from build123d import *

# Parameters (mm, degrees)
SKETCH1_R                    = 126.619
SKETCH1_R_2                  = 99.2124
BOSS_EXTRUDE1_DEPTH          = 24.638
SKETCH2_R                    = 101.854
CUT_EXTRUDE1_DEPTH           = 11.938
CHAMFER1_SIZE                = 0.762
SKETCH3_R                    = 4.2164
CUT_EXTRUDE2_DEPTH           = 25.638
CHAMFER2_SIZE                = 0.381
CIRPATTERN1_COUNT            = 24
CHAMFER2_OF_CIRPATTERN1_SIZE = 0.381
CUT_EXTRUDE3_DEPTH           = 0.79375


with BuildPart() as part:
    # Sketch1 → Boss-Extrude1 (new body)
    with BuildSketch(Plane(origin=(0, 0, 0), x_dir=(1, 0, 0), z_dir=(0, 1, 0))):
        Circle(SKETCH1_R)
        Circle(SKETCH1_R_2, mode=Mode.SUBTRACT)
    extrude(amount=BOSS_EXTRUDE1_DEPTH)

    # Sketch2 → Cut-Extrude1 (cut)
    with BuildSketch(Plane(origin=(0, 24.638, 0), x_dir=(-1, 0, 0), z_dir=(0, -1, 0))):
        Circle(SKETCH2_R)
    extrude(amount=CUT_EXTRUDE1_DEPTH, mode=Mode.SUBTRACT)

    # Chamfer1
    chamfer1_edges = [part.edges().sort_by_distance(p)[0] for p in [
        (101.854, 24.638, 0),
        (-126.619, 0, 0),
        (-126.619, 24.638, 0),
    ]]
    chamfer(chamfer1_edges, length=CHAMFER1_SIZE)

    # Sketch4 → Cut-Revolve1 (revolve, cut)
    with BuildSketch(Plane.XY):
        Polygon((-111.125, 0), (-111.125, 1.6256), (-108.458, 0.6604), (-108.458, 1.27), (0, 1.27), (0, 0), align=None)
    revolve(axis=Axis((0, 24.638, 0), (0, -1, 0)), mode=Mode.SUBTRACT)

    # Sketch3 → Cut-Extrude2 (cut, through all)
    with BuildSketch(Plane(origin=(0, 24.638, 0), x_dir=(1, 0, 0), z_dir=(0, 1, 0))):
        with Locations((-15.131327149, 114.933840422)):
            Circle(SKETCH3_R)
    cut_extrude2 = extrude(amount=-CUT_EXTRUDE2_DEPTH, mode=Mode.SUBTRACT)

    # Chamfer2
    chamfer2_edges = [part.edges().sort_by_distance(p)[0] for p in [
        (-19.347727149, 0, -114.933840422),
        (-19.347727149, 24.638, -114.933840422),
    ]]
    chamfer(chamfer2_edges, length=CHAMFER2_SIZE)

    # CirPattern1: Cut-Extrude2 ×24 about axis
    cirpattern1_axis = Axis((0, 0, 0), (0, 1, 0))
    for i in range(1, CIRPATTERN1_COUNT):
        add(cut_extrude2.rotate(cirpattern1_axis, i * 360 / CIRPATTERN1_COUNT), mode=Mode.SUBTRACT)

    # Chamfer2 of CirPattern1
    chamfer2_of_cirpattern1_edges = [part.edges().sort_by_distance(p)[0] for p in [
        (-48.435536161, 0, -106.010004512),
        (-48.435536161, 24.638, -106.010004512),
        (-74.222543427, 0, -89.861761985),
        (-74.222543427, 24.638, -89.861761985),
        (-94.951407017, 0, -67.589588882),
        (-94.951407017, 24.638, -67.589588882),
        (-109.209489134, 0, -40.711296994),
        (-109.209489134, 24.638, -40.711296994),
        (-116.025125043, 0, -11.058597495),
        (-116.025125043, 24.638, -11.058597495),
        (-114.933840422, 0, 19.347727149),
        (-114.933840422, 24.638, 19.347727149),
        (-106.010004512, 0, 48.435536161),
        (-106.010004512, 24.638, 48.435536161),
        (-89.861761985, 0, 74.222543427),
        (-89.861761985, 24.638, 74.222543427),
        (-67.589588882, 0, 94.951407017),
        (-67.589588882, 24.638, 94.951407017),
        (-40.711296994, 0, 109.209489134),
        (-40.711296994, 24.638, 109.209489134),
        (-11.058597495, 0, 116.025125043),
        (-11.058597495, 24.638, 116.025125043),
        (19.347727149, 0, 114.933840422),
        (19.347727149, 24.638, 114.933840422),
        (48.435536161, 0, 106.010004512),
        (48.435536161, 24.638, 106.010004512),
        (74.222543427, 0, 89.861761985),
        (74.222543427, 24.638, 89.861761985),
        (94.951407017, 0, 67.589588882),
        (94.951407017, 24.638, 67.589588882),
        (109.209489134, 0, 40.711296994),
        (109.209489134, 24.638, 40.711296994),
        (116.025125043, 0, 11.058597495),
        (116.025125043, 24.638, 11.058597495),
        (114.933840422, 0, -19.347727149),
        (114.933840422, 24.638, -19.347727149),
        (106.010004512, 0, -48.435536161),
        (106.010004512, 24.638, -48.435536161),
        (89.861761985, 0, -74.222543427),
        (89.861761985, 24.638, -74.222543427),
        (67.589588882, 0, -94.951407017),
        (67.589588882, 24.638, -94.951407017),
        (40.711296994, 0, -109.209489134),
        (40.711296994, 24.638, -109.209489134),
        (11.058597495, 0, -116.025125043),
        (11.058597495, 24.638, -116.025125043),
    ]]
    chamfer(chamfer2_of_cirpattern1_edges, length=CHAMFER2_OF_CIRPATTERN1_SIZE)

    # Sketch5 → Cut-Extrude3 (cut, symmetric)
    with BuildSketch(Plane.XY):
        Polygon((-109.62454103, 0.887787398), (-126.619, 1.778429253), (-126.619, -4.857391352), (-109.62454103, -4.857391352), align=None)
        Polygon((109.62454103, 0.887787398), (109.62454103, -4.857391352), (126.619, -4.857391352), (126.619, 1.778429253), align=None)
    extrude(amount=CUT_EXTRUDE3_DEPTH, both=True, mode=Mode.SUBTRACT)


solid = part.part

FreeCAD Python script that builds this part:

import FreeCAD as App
import Part
import Sketcher
from FreeCAD import Vector
Q = App.Units.Quantity


def edges_at(feature, points):
    """Names of the edges that pass closest to the given points."""
    edges = feature.Shape.Edges
    near = lambda p: min(range(len(edges)), key=lambda i: edges[i].distToShape(Part.Vertex(*p))[0])
    return sorted({f"Edge{near(p) + 1}" for p in points})

doc = App.newDocument("Part")
body = doc.addObject("PartDesign::Body", "Body")

# Sketch on XZ plane
sketch1 = body.newObject("Sketcher::SketchObject", "Sketch")
sketch1.AttachmentSupport = (doc.getObject("XZ_Plane"), [""])
sketch1.MapMode = "FlatFace"
sketch1.addGeometry(Part.Circle(Vector(0, 0, 0), Vector(0, 0, 1), 127), False)
sketch1.addGeometry(Part.Circle(Vector(0, 0, 0), Vector(0, 0, 1), 99), False)
sketch1.addConstraint(Sketcher.Constraint("Coincident", 0, 3, -1, 1))
sketch1.addConstraint(Sketcher.Constraint("Coincident", 1, 3, -1, 1))
sketch1.addConstraint(Sketcher.Constraint("Diameter", 0, Q("9.97 in")))
sketch1.addConstraint(Sketcher.Constraint("Diameter", 1, Q("7.812 in")))
pad1 = body.newObject("PartDesign::Pad", "Pad")
pad1.Profile = sketch1
pad1.Length = Q("0.97 in")
pad1.Reversed = True

# Sketch on XZ plane
sketch2 = body.newObject("Sketcher::SketchObject", "Sketch001")
sketch2.AttachmentSupport = (doc.getObject("XZ_Plane"), [""])
sketch2.MapMode = "FlatFace"
sketch2.AttachmentOffset = App.Placement(Vector(0, 0, -0.97 * 25.4), App.Rotation())
sketch2.addGeometry(Part.Circle(Vector(0, 0, 0), Vector(0, 0, 1), 102), False)
sketch2.addConstraint(Sketcher.Constraint("Coincident", 0, 3, -1, 1))
sketch2.addConstraint(Sketcher.Constraint("Diameter", 0, Q("8.02 in")))
pocket1 = body.newObject("PartDesign::Pocket", "Pocket")
pocket1.Profile = sketch2
pocket1.Length = Q("0.47 in")
pocket1.Reversed = True
doc.recompute()

chamfer = body.newObject("PartDesign::Chamfer", "Chamfer")
chamfer.Base = (pocket1, edges_at(pocket1, [(101.854, 24.638, 0), (-126.619, 0, 0), (-126.619, 24.638, 0)]))
chamfer.Size = Q("0.03 in")

# Sketch on XY plane
sketch3 = body.newObject("Sketcher::SketchObject", "Sketch002")
sketch3.AttachmentSupport = (doc.getObject("XY_Plane"), [""])
sketch3.MapMode = "FlatFace"
sketch3.addGeometry(Part.LineSegment(Vector(-111.1, 1.6, 0), Vector(-111.1, 0, 0)), False)
sketch3.addGeometry(Part.LineSegment(Vector(-111.1, 0, 0), Vector(0, 0, 0)), False)
sketch3.addGeometry(Part.LineSegment(Vector(0, 0, 0), Vector(0, 1.3, 0)), False)
sketch3.addGeometry(Part.LineSegment(Vector(0, 1.3, 0), Vector(-108.5, 1.3, 0)), False)
sketch3.addGeometry(Part.LineSegment(Vector(-108.5, 1.3, 0), Vector(-108.5, 0.7, 0)), False)
sketch3.addGeometry(Part.LineSegment(Vector(-108.5, 0.7, 0), Vector(-111.1, 1.6, 0)), False)
sketch3.addConstraint(Sketcher.Constraint("Coincident", 0, 2, 1, 1))
sketch3.addConstraint(Sketcher.Constraint("Coincident", 1, 2, 2, 1))
sketch3.addConstraint(Sketcher.Constraint("Coincident", 2, 2, 3, 1))
sketch3.addConstraint(Sketcher.Constraint("Coincident", 3, 2, 4, 1))
sketch3.addConstraint(Sketcher.Constraint("Coincident", 4, 2, 5, 1))
sketch3.addConstraint(Sketcher.Constraint("Coincident", 5, 2, 0, 1))
sketch3.addConstraint(Sketcher.Constraint("Vertical", 0))
sketch3.addConstraint(Sketcher.Constraint("Horizontal", 1))
sketch3.addConstraint(Sketcher.Constraint("Vertical", 2))
sketch3.addConstraint(Sketcher.Constraint("Horizontal", 3))
sketch3.addConstraint(Sketcher.Constraint("Vertical", 4))
sketch3.addConstraint(Sketcher.Constraint("Coincident", 1, 2, -1, 1))
sketch3.addConstraint(Sketcher.Constraint("DistanceX", 3, 2, 3, 1, Q("4.27 in")))
sketch3.addConstraint(Sketcher.Constraint("DistanceY", 2, 1, 2, 2, Q("0.05 in")))
sketch3.addConstraint(Sketcher.Constraint("DistanceX", 1, 1, 1, 2, Q("4.375 in")))
sketch3.addConstraint(Sketcher.Constraint("DistanceY", 0, 2, 0, 1, Q("0.064 in")))
sketch3.addConstraint(Sketcher.Constraint("DistanceY", 4, 2, 4, 1, Q("0.024 in")))
groove = body.newObject("PartDesign::Groove", "Groove")
groove.Profile = sketch3
groove.ReferenceAxis = (sketch3, ["V_Axis"])
groove.Angle = 360

# Sketch on XZ plane
sketch4 = body.newObject("Sketcher::SketchObject", "Sketch003")
sketch4.AttachmentSupport = (doc.getObject("XZ_Plane"), [""])
sketch4.MapMode = "FlatFace"
sketch4.AttachmentOffset = App.Placement(Vector(0, 0, -0.97 * 25.4), App.Rotation())
sketch4.addGeometry(Part.Circle(Vector(-15.1, -114.9, 0), Vector(0, 0, 1), 4.2), False)
sketch4.addConstraint(Sketcher.Constraint("Diameter", 0, Q("0.332 in")))
sketch4.addConstraint(Sketcher.Constraint("DistanceY", 0, 3, -1, 1, 114.93384))
sketch4.addConstraint(Sketcher.Constraint("DistanceX", 0, 3, -1, 1, 15.131327))
pocket2 = body.newObject("PartDesign::Pocket", "Pocket001")
pocket2.Profile = sketch4
pocket2.Type = "ThroughAll"
pocket2.Reversed = True
doc.recompute()

chamfer2 = body.newObject("PartDesign::Chamfer", "Chamfer001")
chamfer2.Base = (pocket2, edges_at(pocket2, [(-19.348, 0, -114.934), (-19.348, 24.638, -114.934)]))
chamfer2.Size = Q("0.015 in")
doc.recompute()

polarpattern = body.newObject("PartDesign::PolarPattern", "PolarPattern")
polarpattern.Originals = [pocket2]
polarpattern.Axis = (doc.getObject("Y_Axis"), [""])
polarpattern.Angle = 360
polarpattern.Occurrences = 24
body.Tip = polarpattern
doc.recompute()

chamfer3 = body.newObject("PartDesign::Chamfer", "Chamfer002")
chamfer3.Base = (polarpattern, edges_at(polarpattern, [
    (-48.436, 0, -106.01),
    (-48.436, 24.638, -106.01),
    (-74.223, 0, -89.862),
    (-74.223, 24.638, -89.862),
    (-94.951, 0, -67.59),
    (-94.951, 24.638, -67.59),
    (-109.209, 0, -40.711),
    (-109.209, 24.638, -40.711),
    (-116.025, 0, -11.059),
    (-116.025, 24.638, -11.059),
    (-114.934, 0, 19.348),
    (-114.934, 24.638, 19.348),
    (-106.01, 0, 48.436),
    (-106.01, 24.638, 48.436),
    (-89.862, 0, 74.223),
    (-89.862, 24.638, 74.223),
    (-67.59, 0, 94.951),
    (-67.59, 24.638, 94.951),
    (-40.711, 0, 109.209),
    (-40.711, 24.638, 109.209),
    (-11.059, 0, 116.025),
    (-11.059, 24.638, 116.025),
    (19.348, 0, 114.934),
    (19.348, 24.638, 114.934),
    (48.436, 0, 106.01),
    (48.436, 24.638, 106.01),
    (74.223, 0, 89.862),
    (74.223, 24.638, 89.862),
    (94.951, 0, 67.59),
    (94.951, 24.638, 67.59),
    (109.209, 0, 40.711),
    (109.209, 24.638, 40.711),
    (116.025, 0, 11.059),
    (116.025, 24.638, 11.059),
    (114.934, 0, -19.348),
    (114.934, 24.638, -19.348),
    (106.01, 0, -48.436),
    (106.01, 24.638, -48.436),
    (89.862, 0, -74.223),
    (89.862, 24.638, -74.223),
    (67.59, 0, -94.951),
    (67.59, 24.638, -94.951),
    (40.711, 0, -109.209),
    (40.711, 24.638, -109.209),
    (11.059, 0, -116.025),
    (11.059, 24.638, -116.025),
]))
chamfer3.Size = Q("0.015 in")

# Sketch on XY plane
sketch5 = body.newObject("Sketcher::SketchObject", "Sketch004")
sketch5.AttachmentSupport = (doc.getObject("XY_Plane"), [""])
sketch5.MapMode = "FlatFace"
sketch5.addGeometry(Part.LineSegment(Vector(-110, 1, 0), Vector(-127, 2, 0)), False)
sketch5.addGeometry(Part.LineSegment(Vector(-127, 2, 0), Vector(-127, -5, 0)), False)
sketch5.addGeometry(Part.LineSegment(Vector(-127, -5, 0), Vector(-110, -5, 0)), False)
sketch5.addGeometry(Part.LineSegment(Vector(-110, -5, 0), Vector(-110, 1, 0)), False)
sketch5.addGeometry(Part.LineSegment(Vector(110, 1, 0), Vector(110, -5, 0)), False)
sketch5.addGeometry(Part.LineSegment(Vector(110, -5, 0), Vector(127, -5, 0)), False)
sketch5.addGeometry(Part.LineSegment(Vector(127, -5, 0), Vector(127, 2, 0)), False)
sketch5.addGeometry(Part.LineSegment(Vector(127, 2, 0), Vector(110, 1, 0)), False)
sketch5.addConstraint(Sketcher.Constraint("Coincident", 0, 2, 1, 1))
sketch5.addConstraint(Sketcher.Constraint("Coincident", 1, 2, 2, 1))
sketch5.addConstraint(Sketcher.Constraint("Coincident", 2, 2, 3, 1))
sketch5.addConstraint(Sketcher.Constraint("Coincident", 3, 2, 0, 1))
sketch5.addConstraint(Sketcher.Constraint("Coincident", 4, 2, 5, 1))
sketch5.addConstraint(Sketcher.Constraint("Coincident", 5, 2, 6, 1))
sketch5.addConstraint(Sketcher.Constraint("Coincident", 6, 2, 7, 1))
sketch5.addConstraint(Sketcher.Constraint("Coincident", 7, 2, 4, 1))
sketch5.addConstraint(Sketcher.Constraint("Vertical", 1))
sketch5.addConstraint(Sketcher.Constraint("Horizontal", 2))
sketch5.addConstraint(Sketcher.Constraint("Vertical", 3))
sketch5.addConstraint(Sketcher.Constraint("Vertical", 4))
sketch5.addConstraint(Sketcher.Constraint("Horizontal", 5))
sketch5.addConstraint(Sketcher.Constraint("Vertical", 6))
sketch5.addConstraint(Sketcher.Constraint("Symmetric", 2, 2, 4, 2, -2))
sketch5.addConstraint(Sketcher.Constraint("Symmetric", 0, 2, 6, 2, -2))
sketch5.addConstraint(Sketcher.Constraint("Horizontal", 3, 2, 7, 2))
sketch5.addConstraint(Sketcher.Constraint("Angle", 0, Q("177 deg")))
sketch5.addConstraint(Sketcher.Constraint("DistanceX", 1, 2, 5, 2, Q("9.97 in")))
sketch5.addConstraint(Sketcher.Constraint("DistanceX", 2, 1, 2, 2, 16.994459))
sketch5.addConstraint(Sketcher.Constraint("DistanceY", 1, 2, 1, 1, 6.635821))
sketch5.addConstraint(Sketcher.Constraint("DistanceY", -1, 1, 0, 2, 1.778429))
pocket3 = body.newObject("PartDesign::Pocket", "Pocket002")
pocket3.Profile = sketch5
pocket3.Length = Q("0.0625 in")
pocket3.Midplane = True

doc.recompute()
